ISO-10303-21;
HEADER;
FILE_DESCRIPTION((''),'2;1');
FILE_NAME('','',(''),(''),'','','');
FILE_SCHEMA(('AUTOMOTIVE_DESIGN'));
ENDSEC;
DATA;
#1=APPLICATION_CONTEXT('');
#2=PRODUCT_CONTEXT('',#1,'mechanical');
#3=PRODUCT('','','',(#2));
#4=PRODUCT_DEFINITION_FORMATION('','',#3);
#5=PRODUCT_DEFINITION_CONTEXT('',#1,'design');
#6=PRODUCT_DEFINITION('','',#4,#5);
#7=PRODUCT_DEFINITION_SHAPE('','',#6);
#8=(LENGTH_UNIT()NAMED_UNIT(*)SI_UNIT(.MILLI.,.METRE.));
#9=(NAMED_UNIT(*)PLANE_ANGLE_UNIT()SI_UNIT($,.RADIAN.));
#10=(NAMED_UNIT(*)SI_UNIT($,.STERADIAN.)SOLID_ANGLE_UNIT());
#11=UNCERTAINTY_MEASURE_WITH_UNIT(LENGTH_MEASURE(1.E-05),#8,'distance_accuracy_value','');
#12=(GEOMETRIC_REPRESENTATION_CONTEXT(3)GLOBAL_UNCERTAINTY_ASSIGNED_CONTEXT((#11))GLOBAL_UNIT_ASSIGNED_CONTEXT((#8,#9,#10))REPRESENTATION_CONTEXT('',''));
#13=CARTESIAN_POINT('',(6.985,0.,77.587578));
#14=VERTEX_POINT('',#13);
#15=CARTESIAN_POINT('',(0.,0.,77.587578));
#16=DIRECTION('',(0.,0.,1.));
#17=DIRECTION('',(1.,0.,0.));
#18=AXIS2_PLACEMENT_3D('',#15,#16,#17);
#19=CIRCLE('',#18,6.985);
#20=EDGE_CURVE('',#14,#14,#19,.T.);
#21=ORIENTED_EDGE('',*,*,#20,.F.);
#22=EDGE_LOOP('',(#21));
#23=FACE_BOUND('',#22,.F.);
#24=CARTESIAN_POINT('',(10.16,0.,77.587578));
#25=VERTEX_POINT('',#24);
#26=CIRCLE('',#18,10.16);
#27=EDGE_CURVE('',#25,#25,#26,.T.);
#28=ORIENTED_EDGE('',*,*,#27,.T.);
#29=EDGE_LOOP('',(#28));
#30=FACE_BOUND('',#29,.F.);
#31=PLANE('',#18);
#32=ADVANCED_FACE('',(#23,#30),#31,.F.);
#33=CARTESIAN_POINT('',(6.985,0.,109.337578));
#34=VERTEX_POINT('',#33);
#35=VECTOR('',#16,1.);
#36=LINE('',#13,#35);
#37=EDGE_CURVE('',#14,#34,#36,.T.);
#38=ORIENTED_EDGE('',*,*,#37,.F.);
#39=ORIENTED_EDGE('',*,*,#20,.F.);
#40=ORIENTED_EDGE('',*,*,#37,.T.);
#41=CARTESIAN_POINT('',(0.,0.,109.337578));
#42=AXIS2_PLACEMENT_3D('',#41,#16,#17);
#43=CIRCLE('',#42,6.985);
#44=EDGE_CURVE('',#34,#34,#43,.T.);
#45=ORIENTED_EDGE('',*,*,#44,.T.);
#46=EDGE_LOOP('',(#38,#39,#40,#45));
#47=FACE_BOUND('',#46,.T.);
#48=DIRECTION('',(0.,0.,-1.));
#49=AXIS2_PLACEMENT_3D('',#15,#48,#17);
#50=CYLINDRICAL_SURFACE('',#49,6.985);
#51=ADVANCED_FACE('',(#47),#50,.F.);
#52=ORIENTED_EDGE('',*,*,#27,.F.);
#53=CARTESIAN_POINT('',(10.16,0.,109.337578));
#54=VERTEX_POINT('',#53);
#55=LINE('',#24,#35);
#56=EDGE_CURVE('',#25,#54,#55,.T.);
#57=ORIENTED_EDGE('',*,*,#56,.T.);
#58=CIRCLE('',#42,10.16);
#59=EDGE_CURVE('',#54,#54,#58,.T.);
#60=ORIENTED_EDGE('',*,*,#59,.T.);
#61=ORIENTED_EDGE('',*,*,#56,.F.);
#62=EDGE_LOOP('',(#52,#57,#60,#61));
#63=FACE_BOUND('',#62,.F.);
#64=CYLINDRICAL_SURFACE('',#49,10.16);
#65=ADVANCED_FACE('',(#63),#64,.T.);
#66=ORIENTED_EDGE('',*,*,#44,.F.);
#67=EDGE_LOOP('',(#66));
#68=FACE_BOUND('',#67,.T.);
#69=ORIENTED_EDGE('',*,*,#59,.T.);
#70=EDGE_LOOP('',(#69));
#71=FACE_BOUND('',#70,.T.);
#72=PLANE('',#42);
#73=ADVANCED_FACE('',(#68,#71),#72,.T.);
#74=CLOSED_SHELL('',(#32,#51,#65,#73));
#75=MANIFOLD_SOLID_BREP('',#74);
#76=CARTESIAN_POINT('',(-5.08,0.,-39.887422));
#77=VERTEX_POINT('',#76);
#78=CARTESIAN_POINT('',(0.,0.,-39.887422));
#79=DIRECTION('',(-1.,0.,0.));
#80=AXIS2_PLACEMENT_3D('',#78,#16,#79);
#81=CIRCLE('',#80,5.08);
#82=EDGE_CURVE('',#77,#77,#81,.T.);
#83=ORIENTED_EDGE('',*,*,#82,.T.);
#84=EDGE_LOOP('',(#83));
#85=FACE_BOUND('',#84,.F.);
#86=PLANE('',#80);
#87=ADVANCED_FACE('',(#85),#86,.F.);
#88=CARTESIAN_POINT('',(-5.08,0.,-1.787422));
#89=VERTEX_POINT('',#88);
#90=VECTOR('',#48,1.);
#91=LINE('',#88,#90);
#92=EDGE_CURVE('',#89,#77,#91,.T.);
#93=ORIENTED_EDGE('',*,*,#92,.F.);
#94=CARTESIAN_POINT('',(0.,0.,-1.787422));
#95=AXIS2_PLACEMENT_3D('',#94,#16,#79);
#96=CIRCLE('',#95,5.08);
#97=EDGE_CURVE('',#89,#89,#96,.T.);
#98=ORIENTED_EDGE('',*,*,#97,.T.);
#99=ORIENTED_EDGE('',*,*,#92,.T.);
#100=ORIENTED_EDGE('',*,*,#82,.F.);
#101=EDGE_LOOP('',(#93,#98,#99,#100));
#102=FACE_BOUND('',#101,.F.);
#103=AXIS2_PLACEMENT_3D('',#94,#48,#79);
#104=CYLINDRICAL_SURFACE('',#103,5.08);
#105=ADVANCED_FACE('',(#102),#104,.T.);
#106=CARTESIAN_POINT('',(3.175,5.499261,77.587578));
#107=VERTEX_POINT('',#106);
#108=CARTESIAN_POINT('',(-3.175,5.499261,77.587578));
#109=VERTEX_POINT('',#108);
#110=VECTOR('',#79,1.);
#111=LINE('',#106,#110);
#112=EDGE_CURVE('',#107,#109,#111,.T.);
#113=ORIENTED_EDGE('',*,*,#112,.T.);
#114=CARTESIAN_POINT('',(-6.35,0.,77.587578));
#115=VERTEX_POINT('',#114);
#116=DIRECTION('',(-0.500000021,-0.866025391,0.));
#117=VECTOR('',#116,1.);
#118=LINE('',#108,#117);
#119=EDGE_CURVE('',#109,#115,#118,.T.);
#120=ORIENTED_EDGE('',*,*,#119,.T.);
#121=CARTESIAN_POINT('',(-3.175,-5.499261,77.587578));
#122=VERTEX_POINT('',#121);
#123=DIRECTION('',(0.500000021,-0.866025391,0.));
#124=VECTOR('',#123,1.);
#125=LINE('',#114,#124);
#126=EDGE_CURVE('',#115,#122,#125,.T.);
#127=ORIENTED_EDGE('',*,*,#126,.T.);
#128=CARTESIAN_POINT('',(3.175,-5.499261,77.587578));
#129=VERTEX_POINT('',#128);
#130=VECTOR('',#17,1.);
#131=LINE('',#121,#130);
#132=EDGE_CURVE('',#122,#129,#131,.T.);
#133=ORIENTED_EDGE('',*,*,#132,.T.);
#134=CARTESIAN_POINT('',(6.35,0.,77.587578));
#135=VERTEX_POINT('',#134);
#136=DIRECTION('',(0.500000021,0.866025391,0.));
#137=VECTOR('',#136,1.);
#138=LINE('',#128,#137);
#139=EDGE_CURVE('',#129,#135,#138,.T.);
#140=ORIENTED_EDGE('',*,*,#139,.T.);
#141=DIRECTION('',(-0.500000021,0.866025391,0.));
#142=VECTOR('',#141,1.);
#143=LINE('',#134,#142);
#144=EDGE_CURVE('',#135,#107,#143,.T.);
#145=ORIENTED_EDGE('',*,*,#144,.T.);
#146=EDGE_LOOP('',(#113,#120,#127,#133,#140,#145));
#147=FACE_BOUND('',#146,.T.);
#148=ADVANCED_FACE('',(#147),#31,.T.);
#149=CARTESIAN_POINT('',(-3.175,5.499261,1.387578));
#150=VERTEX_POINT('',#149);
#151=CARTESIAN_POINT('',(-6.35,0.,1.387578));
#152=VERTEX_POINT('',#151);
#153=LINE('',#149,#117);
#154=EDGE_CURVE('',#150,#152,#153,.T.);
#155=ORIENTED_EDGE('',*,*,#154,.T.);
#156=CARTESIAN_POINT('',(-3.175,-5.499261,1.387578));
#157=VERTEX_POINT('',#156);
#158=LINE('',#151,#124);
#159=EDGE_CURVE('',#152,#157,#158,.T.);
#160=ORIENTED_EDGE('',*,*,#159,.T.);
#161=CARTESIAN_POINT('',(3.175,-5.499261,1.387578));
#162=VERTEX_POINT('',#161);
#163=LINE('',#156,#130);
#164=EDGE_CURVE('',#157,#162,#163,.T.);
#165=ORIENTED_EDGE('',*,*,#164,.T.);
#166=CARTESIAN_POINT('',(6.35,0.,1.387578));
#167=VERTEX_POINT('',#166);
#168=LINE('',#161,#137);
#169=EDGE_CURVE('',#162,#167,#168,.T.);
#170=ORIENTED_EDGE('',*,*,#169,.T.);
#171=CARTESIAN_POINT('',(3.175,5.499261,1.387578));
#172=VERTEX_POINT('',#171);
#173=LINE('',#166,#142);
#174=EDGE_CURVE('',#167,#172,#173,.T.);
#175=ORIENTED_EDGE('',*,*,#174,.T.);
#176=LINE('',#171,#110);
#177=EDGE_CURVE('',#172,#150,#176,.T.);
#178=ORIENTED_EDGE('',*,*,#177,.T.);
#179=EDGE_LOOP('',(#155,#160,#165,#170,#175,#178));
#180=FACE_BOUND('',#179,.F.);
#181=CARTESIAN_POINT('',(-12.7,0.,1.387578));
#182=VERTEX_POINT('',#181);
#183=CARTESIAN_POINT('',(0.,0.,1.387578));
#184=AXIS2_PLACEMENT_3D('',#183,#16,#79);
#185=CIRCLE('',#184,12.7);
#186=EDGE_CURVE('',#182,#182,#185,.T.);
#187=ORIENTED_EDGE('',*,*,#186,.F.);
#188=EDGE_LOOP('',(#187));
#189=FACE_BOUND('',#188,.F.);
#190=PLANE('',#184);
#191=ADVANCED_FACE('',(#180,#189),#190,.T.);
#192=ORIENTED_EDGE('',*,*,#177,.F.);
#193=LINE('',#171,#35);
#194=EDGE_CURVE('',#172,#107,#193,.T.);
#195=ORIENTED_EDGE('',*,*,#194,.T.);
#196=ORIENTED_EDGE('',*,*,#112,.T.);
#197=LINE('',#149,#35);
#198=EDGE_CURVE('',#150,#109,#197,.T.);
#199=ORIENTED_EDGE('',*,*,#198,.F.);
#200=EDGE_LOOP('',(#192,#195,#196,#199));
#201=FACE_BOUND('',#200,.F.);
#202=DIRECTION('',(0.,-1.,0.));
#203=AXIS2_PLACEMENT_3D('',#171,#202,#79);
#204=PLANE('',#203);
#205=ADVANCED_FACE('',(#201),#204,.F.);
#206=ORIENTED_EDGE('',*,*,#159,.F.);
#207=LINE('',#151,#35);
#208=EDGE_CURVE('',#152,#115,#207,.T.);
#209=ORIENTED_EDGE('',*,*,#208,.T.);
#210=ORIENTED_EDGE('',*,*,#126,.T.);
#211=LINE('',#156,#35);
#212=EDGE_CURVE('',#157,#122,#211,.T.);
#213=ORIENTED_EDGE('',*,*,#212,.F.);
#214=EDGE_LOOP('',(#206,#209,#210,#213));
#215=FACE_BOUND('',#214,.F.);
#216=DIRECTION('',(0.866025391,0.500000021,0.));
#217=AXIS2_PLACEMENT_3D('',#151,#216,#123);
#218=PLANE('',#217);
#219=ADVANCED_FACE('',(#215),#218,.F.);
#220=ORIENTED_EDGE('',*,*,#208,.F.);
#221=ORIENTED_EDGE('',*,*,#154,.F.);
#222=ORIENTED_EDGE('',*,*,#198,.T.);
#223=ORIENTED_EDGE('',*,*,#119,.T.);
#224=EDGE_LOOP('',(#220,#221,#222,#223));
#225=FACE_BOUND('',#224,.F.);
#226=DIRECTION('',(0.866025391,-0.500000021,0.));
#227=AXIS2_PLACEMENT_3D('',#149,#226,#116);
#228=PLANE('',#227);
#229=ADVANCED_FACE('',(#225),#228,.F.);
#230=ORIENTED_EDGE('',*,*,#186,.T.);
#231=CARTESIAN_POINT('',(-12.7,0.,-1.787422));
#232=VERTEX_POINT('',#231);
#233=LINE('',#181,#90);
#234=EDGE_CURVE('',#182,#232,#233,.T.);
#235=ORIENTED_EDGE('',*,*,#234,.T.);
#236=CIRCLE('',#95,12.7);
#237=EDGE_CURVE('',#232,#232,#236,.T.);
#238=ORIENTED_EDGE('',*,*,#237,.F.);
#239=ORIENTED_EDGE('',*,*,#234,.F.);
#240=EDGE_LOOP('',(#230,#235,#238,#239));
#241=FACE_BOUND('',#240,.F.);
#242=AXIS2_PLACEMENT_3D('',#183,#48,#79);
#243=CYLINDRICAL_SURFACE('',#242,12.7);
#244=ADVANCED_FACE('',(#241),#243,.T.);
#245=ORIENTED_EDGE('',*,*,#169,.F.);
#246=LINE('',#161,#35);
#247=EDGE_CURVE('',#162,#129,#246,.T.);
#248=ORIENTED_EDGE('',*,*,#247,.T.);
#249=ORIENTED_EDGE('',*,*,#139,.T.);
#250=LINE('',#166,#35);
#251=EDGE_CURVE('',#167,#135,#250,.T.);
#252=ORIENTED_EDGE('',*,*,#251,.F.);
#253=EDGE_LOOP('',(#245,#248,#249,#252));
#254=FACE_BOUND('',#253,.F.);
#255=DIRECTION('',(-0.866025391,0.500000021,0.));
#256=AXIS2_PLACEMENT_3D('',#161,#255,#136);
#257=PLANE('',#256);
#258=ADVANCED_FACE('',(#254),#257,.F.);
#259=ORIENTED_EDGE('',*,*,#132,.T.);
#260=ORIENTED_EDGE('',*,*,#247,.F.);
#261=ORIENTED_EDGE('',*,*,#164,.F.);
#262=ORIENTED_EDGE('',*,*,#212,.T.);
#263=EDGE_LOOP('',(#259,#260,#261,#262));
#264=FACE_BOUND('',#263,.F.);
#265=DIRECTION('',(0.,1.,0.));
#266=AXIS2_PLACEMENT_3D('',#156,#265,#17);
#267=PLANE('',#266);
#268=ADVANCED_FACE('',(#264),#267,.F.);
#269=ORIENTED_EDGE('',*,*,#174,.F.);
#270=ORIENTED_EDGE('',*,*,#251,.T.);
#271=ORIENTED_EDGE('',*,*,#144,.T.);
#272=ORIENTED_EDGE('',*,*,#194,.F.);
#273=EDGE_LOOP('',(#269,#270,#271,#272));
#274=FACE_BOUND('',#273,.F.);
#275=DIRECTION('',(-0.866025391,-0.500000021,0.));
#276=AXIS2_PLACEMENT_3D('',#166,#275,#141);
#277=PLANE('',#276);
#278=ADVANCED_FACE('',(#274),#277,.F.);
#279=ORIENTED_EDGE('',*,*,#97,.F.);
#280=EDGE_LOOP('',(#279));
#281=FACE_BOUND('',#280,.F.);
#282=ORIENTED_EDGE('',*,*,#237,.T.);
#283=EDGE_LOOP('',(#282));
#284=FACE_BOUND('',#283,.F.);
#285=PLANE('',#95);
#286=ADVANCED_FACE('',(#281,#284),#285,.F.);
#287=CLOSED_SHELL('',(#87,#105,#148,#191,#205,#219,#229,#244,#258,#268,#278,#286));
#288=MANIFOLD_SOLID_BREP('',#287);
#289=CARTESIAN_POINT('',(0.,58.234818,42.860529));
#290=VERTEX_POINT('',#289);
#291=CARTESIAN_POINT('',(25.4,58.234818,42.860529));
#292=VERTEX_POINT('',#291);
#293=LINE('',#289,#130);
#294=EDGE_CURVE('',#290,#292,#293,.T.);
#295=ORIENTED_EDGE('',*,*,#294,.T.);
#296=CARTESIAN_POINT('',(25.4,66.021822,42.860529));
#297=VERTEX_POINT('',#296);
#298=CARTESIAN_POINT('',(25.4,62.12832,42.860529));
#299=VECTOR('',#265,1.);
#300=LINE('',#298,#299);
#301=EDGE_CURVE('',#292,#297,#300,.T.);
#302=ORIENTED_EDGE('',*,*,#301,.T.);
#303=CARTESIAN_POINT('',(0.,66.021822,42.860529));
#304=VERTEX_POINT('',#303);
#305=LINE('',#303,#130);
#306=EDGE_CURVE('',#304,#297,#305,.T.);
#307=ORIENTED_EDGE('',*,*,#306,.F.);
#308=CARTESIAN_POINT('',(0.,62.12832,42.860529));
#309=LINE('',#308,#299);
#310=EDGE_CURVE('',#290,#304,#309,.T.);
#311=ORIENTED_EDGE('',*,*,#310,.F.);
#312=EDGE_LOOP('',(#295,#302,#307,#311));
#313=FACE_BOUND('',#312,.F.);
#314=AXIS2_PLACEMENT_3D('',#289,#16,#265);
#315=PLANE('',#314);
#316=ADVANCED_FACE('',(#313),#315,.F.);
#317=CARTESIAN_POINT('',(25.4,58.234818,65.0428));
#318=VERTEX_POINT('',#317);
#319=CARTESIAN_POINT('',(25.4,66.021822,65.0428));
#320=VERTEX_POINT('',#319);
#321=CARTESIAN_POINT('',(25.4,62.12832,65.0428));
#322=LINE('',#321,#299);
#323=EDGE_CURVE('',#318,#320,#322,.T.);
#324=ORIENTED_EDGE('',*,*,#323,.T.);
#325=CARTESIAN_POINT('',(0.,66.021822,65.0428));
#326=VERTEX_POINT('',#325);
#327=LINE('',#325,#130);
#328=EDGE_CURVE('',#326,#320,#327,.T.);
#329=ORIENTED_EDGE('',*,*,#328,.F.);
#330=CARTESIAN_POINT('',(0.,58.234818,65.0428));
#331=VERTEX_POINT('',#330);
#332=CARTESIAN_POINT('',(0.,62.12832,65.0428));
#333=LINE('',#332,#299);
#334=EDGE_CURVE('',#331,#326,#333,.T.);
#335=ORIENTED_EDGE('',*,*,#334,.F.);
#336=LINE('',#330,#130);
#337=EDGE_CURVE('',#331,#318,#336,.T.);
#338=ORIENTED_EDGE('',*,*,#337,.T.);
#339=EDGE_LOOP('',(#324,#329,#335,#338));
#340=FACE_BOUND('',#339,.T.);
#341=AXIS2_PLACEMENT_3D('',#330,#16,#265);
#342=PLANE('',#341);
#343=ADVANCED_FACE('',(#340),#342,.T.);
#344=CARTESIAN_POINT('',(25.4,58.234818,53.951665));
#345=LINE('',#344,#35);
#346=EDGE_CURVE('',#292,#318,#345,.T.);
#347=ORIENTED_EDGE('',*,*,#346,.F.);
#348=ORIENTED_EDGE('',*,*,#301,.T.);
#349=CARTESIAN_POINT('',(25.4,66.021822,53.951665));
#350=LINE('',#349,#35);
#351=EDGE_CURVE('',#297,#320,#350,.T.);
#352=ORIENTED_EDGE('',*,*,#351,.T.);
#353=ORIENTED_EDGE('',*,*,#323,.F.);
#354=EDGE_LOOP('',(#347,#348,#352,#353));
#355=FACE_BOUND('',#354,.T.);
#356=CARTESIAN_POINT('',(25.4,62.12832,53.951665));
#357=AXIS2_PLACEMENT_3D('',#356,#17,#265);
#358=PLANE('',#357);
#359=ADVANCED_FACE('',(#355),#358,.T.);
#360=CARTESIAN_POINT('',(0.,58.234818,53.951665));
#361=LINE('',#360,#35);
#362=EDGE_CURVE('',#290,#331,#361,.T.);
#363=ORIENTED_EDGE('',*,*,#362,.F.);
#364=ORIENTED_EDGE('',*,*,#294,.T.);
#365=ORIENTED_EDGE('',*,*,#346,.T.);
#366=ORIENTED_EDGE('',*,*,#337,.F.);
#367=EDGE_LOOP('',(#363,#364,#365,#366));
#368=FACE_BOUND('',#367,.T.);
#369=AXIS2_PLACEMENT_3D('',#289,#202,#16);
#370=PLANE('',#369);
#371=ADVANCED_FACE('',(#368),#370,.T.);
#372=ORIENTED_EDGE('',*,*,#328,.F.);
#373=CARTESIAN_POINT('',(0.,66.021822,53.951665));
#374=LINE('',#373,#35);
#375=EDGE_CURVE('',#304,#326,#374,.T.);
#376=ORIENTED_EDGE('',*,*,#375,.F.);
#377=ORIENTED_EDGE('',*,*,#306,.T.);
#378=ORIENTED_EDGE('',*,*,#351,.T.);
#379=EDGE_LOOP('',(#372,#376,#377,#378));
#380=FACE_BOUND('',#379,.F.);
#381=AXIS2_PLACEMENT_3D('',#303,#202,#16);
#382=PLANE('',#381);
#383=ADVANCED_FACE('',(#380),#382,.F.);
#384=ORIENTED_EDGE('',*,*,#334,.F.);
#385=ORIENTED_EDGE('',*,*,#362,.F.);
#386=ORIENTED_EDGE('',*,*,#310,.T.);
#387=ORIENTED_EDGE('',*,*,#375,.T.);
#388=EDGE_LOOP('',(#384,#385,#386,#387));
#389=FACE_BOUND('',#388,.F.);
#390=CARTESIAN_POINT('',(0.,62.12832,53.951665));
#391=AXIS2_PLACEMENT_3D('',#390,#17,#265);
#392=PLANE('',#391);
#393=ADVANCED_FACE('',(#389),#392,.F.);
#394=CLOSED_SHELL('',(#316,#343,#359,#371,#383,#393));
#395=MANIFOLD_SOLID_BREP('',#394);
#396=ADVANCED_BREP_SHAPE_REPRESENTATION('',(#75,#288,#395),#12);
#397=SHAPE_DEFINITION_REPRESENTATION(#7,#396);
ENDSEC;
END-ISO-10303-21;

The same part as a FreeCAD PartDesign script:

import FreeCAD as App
import Part
import Sketcher
from FreeCAD import Vector
Q = App.Units.Quantity


def add_polygon(sketch, points):
    """Adds a closed chain of lines whose ends are joined by coincident constraints."""
    first, n = sketch.GeometryCount, len(points)
    for a, b in zip(points, points[1:] + points[:1]):
        sketch.addGeometry(Part.LineSegment(App.Vector(*a, 0), App.Vector(*b, 0)), False)
    for i in range(n):
        sketch.addConstraint(Sketcher.Constraint("Coincident", first + i, 2, first + (i + 1) % n, 1))

doc = App.newDocument("Part")
body = doc.addObject("PartDesign::Body", "Body")

# Sketch on XZ plane
sketch1 = body.newObject("Sketcher::SketchObject", "Sketch")
sketch1.AttachmentSupport = (doc.getObject("XZ_Plane"), [""])
sketch1.MapMode = "FlatFace"
add_polygon(sketch1, [(-5.08, -39.887422), (0, -39.887422), (0, 1.387578), (-12.7, 1.387578), (-12.7, -1.787422), (-5.08, -1.787422)])  # lines 0-5
sketch1.addConstraint(Sketcher.Constraint("Horizontal", 0))
sketch1.addConstraint(Sketcher.Constraint("Vertical", 1))
sketch1.addConstraint(Sketcher.Constraint("Horizontal", 2))
sketch1.addConstraint(Sketcher.Constraint("Vertical", 3))
sketch1.addConstraint(Sketcher.Constraint("Horizontal", 4))
sketch1.addConstraint(Sketcher.Constraint("Vertical", 5))
sketch1.addConstraint(Sketcher.Constraint("PointOnObject", 0, 2, -2))
sketch1.addConstraint(Sketcher.Constraint("DistanceX", 0, 1, 0, 2, Q("0.2 in")))
sketch1.addConstraint(Sketcher.Constraint("DistanceX", 2, 2, 2, 1, Q("0.5 in")))
sketch1.addConstraint(Sketcher.Constraint("DistanceY", 5, 2, 5, 1, Q("1.5 in")))
sketch1.addConstraint(Sketcher.Constraint("DistanceY", 1, 1, 1, 2, Q("1.625 in")))
sketch1.addConstraint(Sketcher.Constraint("DistanceY", 0, 2, -1, 1, 39.887422))
revolution = body.newObject("PartDesign::Revolution", "Revolution")
revolution.Profile = sketch1
revolution.ReferenceAxis = (sketch1, ["V_Axis"])
revolution.Angle = 360

# Sketch on XY plane
sketch2 = body.newObject("Sketcher::SketchObject", "Sketch001")
sketch2.AttachmentSupport = (doc.getObject("XY_Plane"), [""])
sketch2.MapMode = "FlatFace"
sketch2.AttachmentOffset = App.Placement(Vector(0, 0, 1.387578), App.Rotation())
add_polygon(sketch2, [(-3.175, 5.499261), (-6.35, 0), (-3.175, -5.499261), (3.175, -5.499261), (6.35, 0), (3.175, 5.499261)])  # lines 0-5
sketch2.addConstraint(Sketcher.Constraint("Horizontal", 2))
sketch2.addConstraint(Sketcher.Constraint("Horizontal", 5))
sketch2.addConstraint(Sketcher.Constraint("Symmetric", 0, 2, 3, 2, -1, 1))
sketch2.addConstraint(Sketcher.Constraint("Symmetric", 1, 2, 4, 2, -1, 1))
sketch2.addConstraint(Sketcher.Constraint("PointOnObject", 0, 2, -1))
sketch2.addConstraint(Sketcher.Constraint("Parallel", 0, 3))
sketch2.addConstraint(Sketcher.Constraint("Vertical", 2, 2, 4, 2))
sketch2.addConstraint(Sketcher.Constraint("Angle", 0, Q("-120.000001 deg")))
sketch2.addConstraint(Sketcher.Constraint("DistanceX", 2, 1, 2, 2, Q("0.25 in")))
sketch2.addConstraint(Sketcher.Constraint("DistanceX", 0, 2, 3, 2, Q("0.5 in")))
pad1 = body.newObject("PartDesign::Pad", "Pad")
pad1.Profile = sketch2
pad1.Length = Q("3 in")
body2 = doc.addObject("PartDesign::Body", "Body001")

# Sketch on XY plane
sketch3 = body2.newObject("Sketcher::SketchObject", "Sketch002")
sketch3.AttachmentSupport = (doc.getObject("XY_Plane001"), [""])
sketch3.MapMode = "FlatFace"
sketch3.AttachmentOffset = App.Placement(Vector(0, 0, 77.587578), App.Rotation())
sketch3.addGeometry(Part.Circle(Vector(0, 0, 0), Vector(0, 0, 1), 10.16), False)
sketch3.addGeometry(Part.Circle(Vector(0, 0, 0), Vector(0, 0, 1), 6.985), False)
sketch3.addConstraint(Sketcher.Constraint("Coincident", 0, 3, -1, 1))
sketch3.addConstraint(Sketcher.Constraint("Coincident", 1, 3, -1, 1))
sketch3.addConstraint(Sketcher.Constraint("Diameter", 0, Q("0.8 in")))
sketch3.addConstraint(Sketcher.Constraint("Diameter", 1, Q("0.55 in")))
pad2 = body2.newObject("PartDesign::Pad", "Pad001")
pad2.Profile = sketch3
pad2.Length = Q("1.25 in")
body3 = doc.addObject("PartDesign::Body", "Body002")

# Sketch on YZ plane
sketch4 = body3.newObject("Sketcher::SketchObject", "Sketch003")
sketch4.AttachmentSupport = (doc.getObject("YZ_Plane002"), [""])
sketch4.MapMode = "FlatFace"
add_polygon(sketch4, [(58.234818, 65.0428), (58.234818, 42.860529), (66.021822, 42.860529), (66.021822, 65.0428)])  # lines 0-3
sketch4.addConstraint(Sketcher.Constraint("Vertical", 0))
sketch4.addConstraint(Sketcher.Constraint("Horizontal", 1))
sketch4.addConstraint(Sketcher.Constraint("Vertical", 2))
sketch4.addConstraint(Sketcher.Constraint("Horizontal", 3))
sketch4.addConstraint(Sketcher.Constraint("DistanceY", 0, 2, 0, 1, 22.182271))
sketch4.addConstraint(Sketcher.Constraint("DistanceY", -1, 1, 2, 2, 65.0428))
sketch4.addConstraint(Sketcher.Constraint("DistanceX", 1, 1, 1, 2, 7.787004))
sketch4.addConstraint(Sketcher.Constraint("DistanceX", -1, 1, 1, 2, 66.021822))
pad3 = body3.newObject("PartDesign::Pad", "Pad002")
pad3.Profile = sketch4
pad3.Length = Q("1 in")

doc.recompute()
